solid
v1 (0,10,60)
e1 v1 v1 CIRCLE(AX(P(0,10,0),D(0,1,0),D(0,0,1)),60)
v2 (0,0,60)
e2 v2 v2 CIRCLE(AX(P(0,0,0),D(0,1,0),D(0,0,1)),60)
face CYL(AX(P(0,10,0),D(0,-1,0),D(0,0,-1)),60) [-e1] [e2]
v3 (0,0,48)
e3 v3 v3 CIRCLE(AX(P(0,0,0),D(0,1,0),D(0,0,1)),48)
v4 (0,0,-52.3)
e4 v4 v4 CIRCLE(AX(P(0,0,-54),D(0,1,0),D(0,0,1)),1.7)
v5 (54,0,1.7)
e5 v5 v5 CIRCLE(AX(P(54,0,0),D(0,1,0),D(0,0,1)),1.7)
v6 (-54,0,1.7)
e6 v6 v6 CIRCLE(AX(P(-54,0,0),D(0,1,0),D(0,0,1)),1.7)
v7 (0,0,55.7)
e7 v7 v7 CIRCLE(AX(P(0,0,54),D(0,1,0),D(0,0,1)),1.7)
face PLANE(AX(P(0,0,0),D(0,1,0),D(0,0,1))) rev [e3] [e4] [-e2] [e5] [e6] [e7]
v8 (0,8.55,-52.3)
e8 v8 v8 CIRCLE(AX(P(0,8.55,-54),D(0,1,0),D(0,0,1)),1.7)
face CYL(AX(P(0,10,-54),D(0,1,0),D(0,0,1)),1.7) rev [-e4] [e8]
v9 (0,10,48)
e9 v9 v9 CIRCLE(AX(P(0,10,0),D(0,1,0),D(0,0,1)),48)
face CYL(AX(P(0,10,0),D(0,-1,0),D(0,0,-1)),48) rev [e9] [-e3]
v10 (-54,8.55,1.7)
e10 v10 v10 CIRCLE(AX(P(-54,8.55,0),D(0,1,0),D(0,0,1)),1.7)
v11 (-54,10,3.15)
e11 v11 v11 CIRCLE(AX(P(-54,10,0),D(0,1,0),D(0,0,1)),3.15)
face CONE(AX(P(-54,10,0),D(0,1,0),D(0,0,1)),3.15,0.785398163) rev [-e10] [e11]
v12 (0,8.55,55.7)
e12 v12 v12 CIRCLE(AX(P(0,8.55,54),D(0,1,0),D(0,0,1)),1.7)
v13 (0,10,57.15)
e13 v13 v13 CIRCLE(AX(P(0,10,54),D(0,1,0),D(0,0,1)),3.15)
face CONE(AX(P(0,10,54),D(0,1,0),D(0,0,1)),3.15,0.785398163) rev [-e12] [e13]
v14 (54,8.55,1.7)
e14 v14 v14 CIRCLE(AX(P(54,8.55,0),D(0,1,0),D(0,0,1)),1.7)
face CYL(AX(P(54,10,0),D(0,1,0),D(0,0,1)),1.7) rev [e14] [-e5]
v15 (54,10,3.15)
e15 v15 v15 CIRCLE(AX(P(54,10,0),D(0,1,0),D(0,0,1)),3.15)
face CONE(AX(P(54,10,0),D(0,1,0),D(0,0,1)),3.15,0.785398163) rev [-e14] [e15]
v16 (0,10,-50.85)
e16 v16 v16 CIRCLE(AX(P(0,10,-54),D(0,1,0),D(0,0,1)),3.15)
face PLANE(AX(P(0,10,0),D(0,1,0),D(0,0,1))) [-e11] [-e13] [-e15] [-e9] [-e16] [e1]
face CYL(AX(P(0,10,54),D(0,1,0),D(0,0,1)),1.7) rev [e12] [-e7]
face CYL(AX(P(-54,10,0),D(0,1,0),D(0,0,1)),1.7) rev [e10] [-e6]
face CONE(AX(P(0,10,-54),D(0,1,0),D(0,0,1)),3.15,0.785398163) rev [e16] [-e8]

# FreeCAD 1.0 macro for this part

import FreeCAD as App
import Part
import Sketcher
from FreeCAD import Vector

doc = App.newDocument("Part")
params = doc.addObject("Spreadsheet::Sheet", "Params")
for row, (alias, value) in enumerate([
    ("sketch1_diameter", "120 mm"),
    ("sketch1_diameter2", "96 mm"),
    ("pad1_length", "10 mm"),
    ("sketch2_diameter", "3.4 mm"),
    ("hole_diameter", "3.4 mm"),
    ("hole_depth", "188 mm"),
    ("hole_csink_diameter", "6.3 mm"),
], start=1):
    params.set(f"A{row}", alias)
    params.set(f"B{row}", "=" + value)
    params.setAlias(f"B{row}", alias)

body = doc.addObject("PartDesign::Body", "Body")

sketch1 = body.newObject("Sketcher::SketchObject", "Sketch")
sketch1.AttachmentSupport = (doc.getObject("XZ_Plane"), [""])
sketch1.MapMode = "FlatFace"
sketch1.addGeometry([
    Part.Circle(Vector(0, 0, 0), Vector(0, 0, 1), 60),
    Part.Circle(Vector(0, 0, 0), Vector(0, 0, 1), 48),
], False)
sketch1.addConstraint([
    Sketcher.Constraint("Coincident", 0, 3, -1, 1),
    Sketcher.Constraint("Coincident", 1, 3, -1, 1),
    Sketcher.Constraint("Diameter", 0, 120.0),
    Sketcher.Constraint("Diameter", 1, 96.0),
])
sketch1.setExpression("Constraints[2]", "Params.sketch1_diameter")
sketch1.setExpression("Constraints[3]", "Params.sketch1_diameter2")
pad1 = body.newObject("PartDesign::Pad", "Pad")
pad1.Profile = sketch1
pad1.setExpression("Length", "Params.pad1_length")
pad1.Reversed = True

sketch2 = body.newObject("Sketcher::SketchObject", "Sketch001")
sketch2.AttachmentSupport = (doc.getObject("XZ_Plane"), [""])
sketch2.MapMode = "FlatFace"
sketch2.AttachmentOffset = App.Placement(Vector(0, 0, -10), App.Rotation())
sketch2.addGeometry([
    Part.Circle(Vector(0, 54, 0), Vector(0, 0, 1), 1.7),
    Part.Circle(Vector(54, 0, 0), Vector(0, 0, 1), 1.7),
    Part.Circle(Vector(0, -54, 0), Vector(0, 0, 1), 1.7),
    Part.Circle(Vector(-54, 0, 0), Vector(0, 0, 1), 1.7),
], False)
sketch2.addConstraint([
    Sketcher.Constraint("Equal", 0, 1),
    Sketcher.Constraint("Equal", 1, 2),
    Sketcher.Constraint("Equal", 2, 3),
    Sketcher.Constraint("Symmetric", 0, 3, 2, 3, -1, 1),
    Sketcher.Constraint("Symmetric", 1, 3, 3, 3, -1, 1),
    Sketcher.Constraint("PointOnObject", 0, 3, -2),
    Sketcher.Constraint("PointOnObject", 1, 3, -1),
    Sketcher.Constraint("Diameter", 0, 3.4),
    Sketcher.Constraint("DistanceY", -1, 1, 0, 3, 54.0),
    Sketcher.Constraint("DistanceX", -1, 1, 1, 3, 54.0),
])
sketch2.setExpression("Constraints[7]", "Params.sketch2_diameter")
doc.recompute()
hole = body.newObject("PartDesign::Hole", "Hole")
hole.Profile = sketch2
hole.ThreadType = "None"
hole.setExpression("Diameter", "Params.hole_diameter")
hole.DepthType = "Dimension"
hole.setExpression("Depth", "Params.hole_depth")
hole.DrillPoint = "Angled"
hole.DrillPointAngle = 118
hole.HoleCutType = "Countersink"
hole.setExpression("HoleCutDiameter", "Params.hole_csink_diameter")
hole.HoleCutCountersinkAngle = 90
hole.Reversed = True

doc.recompute()
